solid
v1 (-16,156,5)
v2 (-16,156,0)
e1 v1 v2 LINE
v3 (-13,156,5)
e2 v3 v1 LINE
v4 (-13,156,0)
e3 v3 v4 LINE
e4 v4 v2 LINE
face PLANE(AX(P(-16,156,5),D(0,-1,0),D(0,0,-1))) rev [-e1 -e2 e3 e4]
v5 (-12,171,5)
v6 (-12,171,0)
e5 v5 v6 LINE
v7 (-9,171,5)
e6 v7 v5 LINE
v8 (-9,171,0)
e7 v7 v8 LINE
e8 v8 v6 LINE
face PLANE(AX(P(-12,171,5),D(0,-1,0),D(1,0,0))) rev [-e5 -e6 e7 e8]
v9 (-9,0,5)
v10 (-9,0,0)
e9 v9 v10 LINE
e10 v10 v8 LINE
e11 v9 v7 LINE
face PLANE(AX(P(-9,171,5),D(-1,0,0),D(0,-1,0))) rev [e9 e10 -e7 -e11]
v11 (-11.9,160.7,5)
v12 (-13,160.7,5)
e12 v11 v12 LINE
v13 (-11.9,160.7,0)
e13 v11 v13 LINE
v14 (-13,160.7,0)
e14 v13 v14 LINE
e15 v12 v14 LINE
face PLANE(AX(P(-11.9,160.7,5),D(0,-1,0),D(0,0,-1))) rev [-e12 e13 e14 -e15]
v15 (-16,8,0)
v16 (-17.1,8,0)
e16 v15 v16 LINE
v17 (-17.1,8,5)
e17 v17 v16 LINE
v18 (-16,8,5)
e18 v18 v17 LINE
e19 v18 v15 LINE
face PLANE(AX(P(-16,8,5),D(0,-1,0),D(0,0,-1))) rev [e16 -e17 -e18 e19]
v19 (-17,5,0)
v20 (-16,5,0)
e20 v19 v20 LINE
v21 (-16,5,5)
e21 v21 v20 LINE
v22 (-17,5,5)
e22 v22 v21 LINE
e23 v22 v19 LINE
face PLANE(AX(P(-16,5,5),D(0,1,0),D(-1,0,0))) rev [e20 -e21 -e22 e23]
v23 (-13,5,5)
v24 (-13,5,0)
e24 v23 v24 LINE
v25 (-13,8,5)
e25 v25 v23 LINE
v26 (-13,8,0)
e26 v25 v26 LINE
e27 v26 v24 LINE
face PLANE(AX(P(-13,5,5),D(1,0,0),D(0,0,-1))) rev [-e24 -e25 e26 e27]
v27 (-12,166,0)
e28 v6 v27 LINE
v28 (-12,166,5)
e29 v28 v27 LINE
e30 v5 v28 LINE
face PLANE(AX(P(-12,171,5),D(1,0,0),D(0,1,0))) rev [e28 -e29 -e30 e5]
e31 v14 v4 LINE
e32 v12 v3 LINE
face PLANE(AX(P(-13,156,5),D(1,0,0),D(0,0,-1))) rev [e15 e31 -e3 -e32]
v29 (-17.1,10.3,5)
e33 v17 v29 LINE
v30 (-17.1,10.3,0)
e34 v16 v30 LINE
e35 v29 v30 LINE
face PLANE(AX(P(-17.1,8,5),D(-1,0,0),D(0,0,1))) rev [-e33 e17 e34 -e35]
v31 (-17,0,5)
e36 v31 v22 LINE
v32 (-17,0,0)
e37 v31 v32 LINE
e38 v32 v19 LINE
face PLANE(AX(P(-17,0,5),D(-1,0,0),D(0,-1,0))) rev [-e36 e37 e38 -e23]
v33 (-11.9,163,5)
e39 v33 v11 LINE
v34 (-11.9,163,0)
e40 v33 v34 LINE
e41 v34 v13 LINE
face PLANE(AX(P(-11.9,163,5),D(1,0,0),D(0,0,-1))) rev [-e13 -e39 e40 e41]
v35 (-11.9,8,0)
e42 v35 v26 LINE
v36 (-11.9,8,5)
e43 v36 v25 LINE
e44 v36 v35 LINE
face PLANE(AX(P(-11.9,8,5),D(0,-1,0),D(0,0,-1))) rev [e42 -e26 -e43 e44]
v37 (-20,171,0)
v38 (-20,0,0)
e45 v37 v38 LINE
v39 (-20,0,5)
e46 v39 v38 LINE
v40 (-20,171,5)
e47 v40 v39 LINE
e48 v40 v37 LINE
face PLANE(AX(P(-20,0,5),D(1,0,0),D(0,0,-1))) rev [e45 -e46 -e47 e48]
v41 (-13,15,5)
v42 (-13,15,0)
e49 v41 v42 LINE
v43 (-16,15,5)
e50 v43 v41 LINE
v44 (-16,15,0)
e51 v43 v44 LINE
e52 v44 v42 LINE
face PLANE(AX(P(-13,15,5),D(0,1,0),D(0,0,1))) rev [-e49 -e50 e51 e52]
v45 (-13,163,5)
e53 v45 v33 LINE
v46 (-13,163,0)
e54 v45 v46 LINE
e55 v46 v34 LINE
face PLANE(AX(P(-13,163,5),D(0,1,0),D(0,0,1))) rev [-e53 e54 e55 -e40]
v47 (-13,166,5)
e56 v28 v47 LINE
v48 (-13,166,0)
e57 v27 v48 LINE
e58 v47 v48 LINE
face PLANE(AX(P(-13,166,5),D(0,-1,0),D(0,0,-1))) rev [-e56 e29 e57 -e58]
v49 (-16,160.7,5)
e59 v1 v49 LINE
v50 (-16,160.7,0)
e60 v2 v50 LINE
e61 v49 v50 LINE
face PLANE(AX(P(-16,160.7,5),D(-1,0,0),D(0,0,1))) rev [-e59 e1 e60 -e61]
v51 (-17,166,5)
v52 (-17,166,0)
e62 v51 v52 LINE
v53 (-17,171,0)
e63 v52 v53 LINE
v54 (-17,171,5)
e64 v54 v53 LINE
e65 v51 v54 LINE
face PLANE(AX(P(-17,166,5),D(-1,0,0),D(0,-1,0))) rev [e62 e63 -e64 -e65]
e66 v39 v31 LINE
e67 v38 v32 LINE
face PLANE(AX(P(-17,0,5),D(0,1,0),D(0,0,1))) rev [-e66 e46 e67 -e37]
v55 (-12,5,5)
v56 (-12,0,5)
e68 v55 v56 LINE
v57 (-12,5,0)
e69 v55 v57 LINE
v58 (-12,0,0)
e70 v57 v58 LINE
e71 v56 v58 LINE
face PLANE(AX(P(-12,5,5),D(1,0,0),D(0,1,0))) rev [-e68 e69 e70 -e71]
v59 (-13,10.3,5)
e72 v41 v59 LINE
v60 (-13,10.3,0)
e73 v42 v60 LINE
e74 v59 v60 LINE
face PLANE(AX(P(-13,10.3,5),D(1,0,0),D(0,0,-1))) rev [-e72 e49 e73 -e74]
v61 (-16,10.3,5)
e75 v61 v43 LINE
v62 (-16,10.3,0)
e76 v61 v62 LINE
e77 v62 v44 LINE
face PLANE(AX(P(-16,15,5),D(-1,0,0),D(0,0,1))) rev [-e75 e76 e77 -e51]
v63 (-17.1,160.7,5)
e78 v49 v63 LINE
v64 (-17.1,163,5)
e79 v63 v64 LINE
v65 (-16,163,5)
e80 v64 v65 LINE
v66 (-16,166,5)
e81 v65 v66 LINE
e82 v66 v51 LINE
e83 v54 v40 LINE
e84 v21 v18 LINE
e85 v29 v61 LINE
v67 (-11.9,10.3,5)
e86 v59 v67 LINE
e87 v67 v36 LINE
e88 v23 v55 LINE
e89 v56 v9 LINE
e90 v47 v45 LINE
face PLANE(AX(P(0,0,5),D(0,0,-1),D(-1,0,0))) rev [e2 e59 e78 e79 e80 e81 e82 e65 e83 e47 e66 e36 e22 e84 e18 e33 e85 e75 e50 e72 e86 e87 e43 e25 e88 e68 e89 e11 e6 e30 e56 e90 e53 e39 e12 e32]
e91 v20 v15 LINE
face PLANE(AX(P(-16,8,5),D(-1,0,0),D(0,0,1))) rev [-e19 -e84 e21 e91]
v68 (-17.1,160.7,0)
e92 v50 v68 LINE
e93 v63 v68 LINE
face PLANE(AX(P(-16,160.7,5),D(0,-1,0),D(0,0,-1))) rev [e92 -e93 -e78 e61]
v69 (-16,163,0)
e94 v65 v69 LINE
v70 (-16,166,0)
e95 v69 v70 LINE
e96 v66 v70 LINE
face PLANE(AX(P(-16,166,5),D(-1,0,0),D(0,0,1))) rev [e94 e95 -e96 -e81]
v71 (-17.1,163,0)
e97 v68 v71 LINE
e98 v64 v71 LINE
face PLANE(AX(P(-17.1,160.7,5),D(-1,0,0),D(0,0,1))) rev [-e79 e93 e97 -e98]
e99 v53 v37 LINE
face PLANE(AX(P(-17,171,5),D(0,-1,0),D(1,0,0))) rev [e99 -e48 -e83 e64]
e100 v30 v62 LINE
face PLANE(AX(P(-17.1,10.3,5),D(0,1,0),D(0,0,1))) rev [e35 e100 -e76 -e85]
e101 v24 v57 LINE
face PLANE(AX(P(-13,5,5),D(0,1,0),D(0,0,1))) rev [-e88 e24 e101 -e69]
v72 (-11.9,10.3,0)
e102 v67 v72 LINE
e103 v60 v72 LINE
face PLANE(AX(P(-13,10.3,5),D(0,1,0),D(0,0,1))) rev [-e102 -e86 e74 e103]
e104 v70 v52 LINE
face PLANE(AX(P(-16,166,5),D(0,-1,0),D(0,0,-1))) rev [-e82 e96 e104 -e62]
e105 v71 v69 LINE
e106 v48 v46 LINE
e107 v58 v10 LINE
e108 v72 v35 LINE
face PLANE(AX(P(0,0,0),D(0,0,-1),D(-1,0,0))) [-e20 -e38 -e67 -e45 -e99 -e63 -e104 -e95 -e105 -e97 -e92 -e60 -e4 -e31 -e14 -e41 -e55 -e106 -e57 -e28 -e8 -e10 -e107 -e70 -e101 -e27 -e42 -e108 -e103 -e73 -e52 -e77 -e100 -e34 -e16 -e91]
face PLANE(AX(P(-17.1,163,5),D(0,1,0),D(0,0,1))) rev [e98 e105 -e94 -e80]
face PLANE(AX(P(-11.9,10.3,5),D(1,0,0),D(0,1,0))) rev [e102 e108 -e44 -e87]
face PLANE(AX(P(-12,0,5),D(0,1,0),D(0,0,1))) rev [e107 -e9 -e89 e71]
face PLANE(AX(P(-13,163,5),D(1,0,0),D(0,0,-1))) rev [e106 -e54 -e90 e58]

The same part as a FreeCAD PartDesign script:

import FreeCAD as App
import Part
import Sketcher


def add_polygon(sketch, points):
    """Adds a closed chain of lines whose ends are joined by coincident constraints."""
    first, n = sketch.GeometryCount, len(points)
    for a, b in zip(points, points[1:] + points[:1]):
        sketch.addGeometry(Part.LineSegment(App.Vector(*a, 0), App.Vector(*b, 0)), False)
    for i in range(n):
        sketch.addConstraint(Sketcher.Constraint("Coincident", first + i, 2, first + (i + 1) % n, 1))

doc = App.newDocument("Part")
body = doc.addObject("PartDesign::Body", "Body")

# Sketch on XY plane
sketch1 = body.newObject("Sketcher::SketchObject", "Sketch")
sketch1.AttachmentSupport = (doc.getObject("XY_Plane"), [""])
sketch1.MapMode = "FlatFace"
add_polygon(sketch1, [(-9, 0), (-9, 171), (-12, 171), (-12, 166), (-13, 166), (-13, 163), (-11.9, 163), (-11.9, 160.7), (-13, 160.7), (-13, 156), (-16, 156), (-16, 160.7), (-17.1, 160.7), (-17.1, 163), (-16, 163), (-16, 166), (-17, 166), (-17, 171), (-20, 171), (-20, 0), (-17, 0), (-17, 5), (-16, 5), (-16, 8), (-17.1, 8), (-17.1, 10.3), (-16, 10.3), (-16, 15), (-13, 15), (-13, 10.3), (-11.9, 10.3), (-11.9, 8), (-13, 8), (-13, 5), (-12, 5), (-12, 0)])  # lines 0-35
sketch1.addConstraint([
    Sketcher.Constraint("Vertical", 0),
    Sketcher.Constraint("Horizontal", 1),
    Sketcher.Constraint("Vertical", 2),
    Sketcher.Constraint("Horizontal", 3),
    Sketcher.Constraint("Vertical", 4),
    Sketcher.Constraint("Horizontal", 5),
    Sketcher.Constraint("Vertical", 6),
    Sketcher.Constraint("Horizontal", 7),
    Sketcher.Constraint("Vertical", 8),
    Sketcher.Constraint("Horizontal", 9),
    Sketcher.Constraint("Vertical", 10),
    Sketcher.Constraint("Horizontal", 11),
    Sketcher.Constraint("Vertical", 12),
    Sketcher.Constraint("Horizontal", 13),
    Sketcher.Constraint("Vertical", 14),
    Sketcher.Constraint("Horizontal", 15),
    Sketcher.Constraint("Vertical", 16),
    Sketcher.Constraint("Horizontal", 17),
    Sketcher.Constraint("Vertical", 18),
    Sketcher.Constraint("Horizontal", 19),
    Sketcher.Constraint("Vertical", 20),
    Sketcher.Constraint("Horizontal", 21),
    Sketcher.Constraint("Vertical", 22),
    Sketcher.Constraint("Horizontal", 23),
    Sketcher.Constraint("Vertical", 24),
    Sketcher.Constraint("Horizontal", 25),
    Sketcher.Constraint("Vertical", 26),
    Sketcher.Constraint("Horizontal", 27),
    Sketcher.Constraint("Vertical", 28),
    Sketcher.Constraint("Horizontal", 29),
    Sketcher.Constraint("Vertical", 30),
    Sketcher.Constraint("Horizontal", 31),
    Sketcher.Constraint("Vertical", 32),
    Sketcher.Constraint("Horizontal", 33),
    Sketcher.Constraint("Vertical", 34),
    Sketcher.Constraint("Horizontal", 35),
    Sketcher.Constraint("PointOnObject", 18, 2, -1),
    Sketcher.Constraint("PointOnObject", 34, 2, -1),
    Sketcher.Constraint("Horizontal", 7, 2, 10, 2),
    Sketcher.Constraint("Horizontal", 5, 2, 12, 2),
    Sketcher.Constraint("Horizontal", 3, 2, 14, 2),
    Sketcher.Constraint("Horizontal", 1, 2, 16, 2),
    Sketcher.Constraint("Horizontal", 25, 2, 28, 2),
    Sketcher.Constraint("Horizontal", 23, 2, 30, 2),
    Sketcher.Constraint("Horizontal", 21, 2, 32, 2),
    Sketcher.Constraint("Vertical", 4, 2, 7, 2),
    Sketcher.Constraint("Vertical", 10, 2, 13, 2),
    Sketcher.Constraint("Vertical", 16, 2, 19, 2),
    Sketcher.Constraint("Vertical", 14, 2, 21, 2),
    Sketcher.Constraint("Vertical", 12, 2, 23, 2),
    Sketcher.Constraint("Vertical", 22, 2, 25, 2),
    Sketcher.Constraint("Vertical", 8, 2, 27, 2),
    Sketcher.Constraint("Vertical", 6, 2, 29, 2),
    Sketcher.Constraint("Vertical", 28, 2, 31, 2),
    Sketcher.Constraint("Vertical", 2, 2, 33, 2),
    Sketcher.Constraint("Equal", 1, 9),
    Sketcher.Constraint("Equal", 7, 11),
    Sketcher.Constraint("Equal", 3, 15),
    Sketcher.Constraint("Equal", 9, 17),
    Sketcher.Constraint("Equal", 35, 4),
    Sketcher.Constraint("Equal", 16, 20),
    Sketcher.Constraint("Equal", 14, 22),
    Sketcher.Constraint("Equal", 12, 24),
    Sketcher.Constraint("Equal", 10, 26),
    Sketcher.Constraint("DistanceX", 1, 2, 1, 1, 3.0),
    Sketcher.Constraint("DistanceX", 3, 2, 3, 1, 1.0),
    Sketcher.Constraint("DistanceY", 0, 1, 0, 2, 171.0),
    Sketcher.Constraint("DistanceY", 2, 2, 2, 1, 5.0),
    Sketcher.Constraint("DistanceX", 5, 1, 5, 2, 1.1),
    Sketcher.Constraint("DistanceY", 6, 2, 6, 1, 2.3),
    Sketcher.Constraint("DistanceY", 8, 2, 8, 1, 4.7),
    Sketcher.Constraint("DistanceX", 0, 2, -1, 1, 9.0),
])
pad1 = body.newObject("PartDesign::Pad", "Pad")
pad1.Profile = sketch1
pad1.Length = 5

doc.recompute()
